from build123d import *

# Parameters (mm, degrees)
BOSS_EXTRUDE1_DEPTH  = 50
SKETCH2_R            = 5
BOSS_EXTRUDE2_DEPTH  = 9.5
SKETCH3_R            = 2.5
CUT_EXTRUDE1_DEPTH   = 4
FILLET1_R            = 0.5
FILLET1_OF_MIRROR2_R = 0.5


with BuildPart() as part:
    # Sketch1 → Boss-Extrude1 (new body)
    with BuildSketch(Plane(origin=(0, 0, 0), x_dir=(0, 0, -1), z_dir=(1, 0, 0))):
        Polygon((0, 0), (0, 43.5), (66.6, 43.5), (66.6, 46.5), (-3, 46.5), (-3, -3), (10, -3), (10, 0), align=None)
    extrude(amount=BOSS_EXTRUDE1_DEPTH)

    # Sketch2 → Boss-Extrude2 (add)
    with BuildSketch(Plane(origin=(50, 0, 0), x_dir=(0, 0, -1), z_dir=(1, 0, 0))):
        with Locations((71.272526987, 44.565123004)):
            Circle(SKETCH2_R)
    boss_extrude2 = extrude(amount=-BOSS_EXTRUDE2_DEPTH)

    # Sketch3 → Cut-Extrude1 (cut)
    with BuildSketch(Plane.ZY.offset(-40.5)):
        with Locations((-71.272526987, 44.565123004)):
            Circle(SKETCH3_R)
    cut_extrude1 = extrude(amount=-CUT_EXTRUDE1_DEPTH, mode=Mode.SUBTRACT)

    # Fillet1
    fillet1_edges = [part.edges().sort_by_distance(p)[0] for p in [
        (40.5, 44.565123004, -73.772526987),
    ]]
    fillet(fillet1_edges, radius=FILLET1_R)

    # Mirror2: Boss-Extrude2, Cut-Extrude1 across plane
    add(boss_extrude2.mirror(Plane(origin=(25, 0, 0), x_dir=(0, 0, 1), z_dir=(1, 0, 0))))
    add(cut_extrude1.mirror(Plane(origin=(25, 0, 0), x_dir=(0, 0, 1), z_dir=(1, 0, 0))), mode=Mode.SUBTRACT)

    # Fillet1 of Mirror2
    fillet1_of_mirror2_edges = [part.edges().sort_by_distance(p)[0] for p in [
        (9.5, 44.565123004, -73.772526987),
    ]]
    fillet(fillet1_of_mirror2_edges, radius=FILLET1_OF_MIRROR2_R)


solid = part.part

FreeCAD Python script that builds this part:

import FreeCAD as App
import Part
import Sketcher
from FreeCAD import Vector


def edges_at(feature, points):
    """Names of the edges that pass closest to the given points."""
    edges = feature.Shape.Edges
    near = lambda p: min(range(len(edges)), key=lambda i: edges[i].distToShape(Part.Vertex(*p))[0])
    return sorted({f"Edge{near(p) + 1}" for p in points})


def add_polygon(sketch, points):
    """Adds a closed chain of lines whose ends are joined by coincident constraints."""
    first, n = sketch.GeometryCount, len(points)
    for a, b in zip(points, points[1:] + points[:1]):
        sketch.addGeometry(Part.LineSegment(App.Vector(*a, 0), App.Vector(*b, 0)), False)
    for i in range(n):
        sketch.addConstraint(Sketcher.Constraint("Coincident", first + i, 2, first + (i + 1) % n, 1))

doc = App.newDocument("Part")
body = doc.addObject("PartDesign::Body", "Body")

# Sketch on YZ plane
sketch1 = doc.addObject("Sketcher::SketchObject", "Sketch")
body.addObject(sketch1)
sketch1.AttachmentSupport = (doc.YZ_Plane, [""])
sketch1.MapMode = "FlatFace"
add_polygon(sketch1, [(0, 0), (43.5, 0), (43.5, -66.6), (46.5, -66.6), (46.5, 3), (-3, 3), (-3, -10), (0, -10)])  # lines 0-7
sketch1.addConstraint(Sketcher.Constraint("Horizontal", 0))
sketch1.addConstraint(Sketcher.Constraint("Vertical", 1))
sketch1.addConstraint(Sketcher.Constraint("Horizontal", 2))
sketch1.addConstraint(Sketcher.Constraint("Vertical", 3))
sketch1.addConstraint(Sketcher.Constraint("Horizontal", 4))
sketch1.addConstraint(Sketcher.Constraint("Vertical", 5))
sketch1.addConstraint(Sketcher.Constraint("Horizontal", 6))
sketch1.addConstraint(Sketcher.Constraint("Vertical", 7))
sketch1.addConstraint(Sketcher.Constraint("Coincident", 7, 2, -1, 1))
sketch1.addConstraint(Sketcher.Constraint("Equal", 2, 6))
sketch1.addConstraint(Sketcher.Constraint("DistanceX", 2, 1, 2, 2, 3.0))
sketch1.addConstraint(Sketcher.Constraint("DistanceY", 5, 2, 5, 1, 13.0))
sketch1.addConstraint(Sketcher.Constraint("DistanceY", 7, 1, 7, 2, 10.0))
sketch1.addConstraint(Sketcher.Constraint("DistanceX", 0, 1, 0, 2, 43.5))
sketch1.addConstraint(Sketcher.Constraint("DistanceY", 1, 2, 1, 1, 66.6))
pad1 = doc.addObject("PartDesign::Pad", "Pad")
body.addObject(pad1)
pad1.Profile = sketch1
pad1.Length = 50

# Sketch on YZ plane
sketch2 = doc.addObject("Sketcher::SketchObject", "Sketch001")
body.addObject(sketch2)
sketch2.AttachmentSupport = (doc.YZ_Plane, [""])
sketch2.MapMode = "FlatFace"
sketch2.AttachmentOffset = App.Placement(Vector(0, 0, 50), App.Rotation())
sketch2.addGeometry(Part.Circle(Vector(45, -71, 0), Vector(0, 0, 1), 5), False)
sketch2.addConstraint(Sketcher.Constraint("Diameter", 0, 10.0))
sketch2.addConstraint(Sketcher.Constraint("DistanceX", -1, 1, 0, 3, 44.565123))
sketch2.addConstraint(Sketcher.Constraint("DistanceY", 0, 3, -1, 1, 71.272527))
pad2 = doc.addObject("PartDesign::Pad", "Pad001")
body.addObject(pad2)
pad2.Profile = sketch2
pad2.Length = 9.5
pad2.Reversed = True

# Sketch on YZ plane
sketch3 = doc.addObject("Sketcher::SketchObject", "Sketch002")
body.addObject(sketch3)
sketch3.AttachmentSupport = (doc.YZ_Plane, [""])
sketch3.MapMode = "FlatFace"
sketch3.AttachmentOffset = App.Placement(Vector(0, 0, 40.5), App.Rotation())
sketch3.addGeometry(Part.Circle(Vector(44.6, -71.3, 0), Vector(0, 0, 1), 2.5), False)
sketch3.addConstraint(Sketcher.Constraint("Diameter", 0, 5.0))
sketch3.addConstraint(Sketcher.Constraint("DistanceX", -1, 1, 0, 3, 44.565123))
sketch3.addConstraint(Sketcher.Constraint("DistanceY", 0, 3, -1, 1, 71.272527))
pocket1 = doc.addObject("PartDesign::Pocket", "Pocket")
body.addObject(pocket1)
pocket1.Profile = sketch3
pocket1.Length = 4
pocket1.Reversed = True
doc.recompute()

fillet = doc.addObject("PartDesign::Fillet", "Fillet")
body.addObject(fillet)
fillet.Base = (pocket1, edges_at(pocket1, [(40.5, 44.565, -73.773)]))
fillet.Radius = 0.5
doc.recompute()

datumplane = doc.addObject("PartDesign::Plane", "DatumPlane")
body.addObject(datumplane)
datumplane.AttachmentSupport = (doc.YZ_Plane, [""])
datumplane.MapMode = "FlatFace"
datumplane.AttachmentOffset = App.Placement(Vector(0, 0, 25), App.Rotation())
mirrored = doc.addObject("PartDesign::Mirrored", "Mirrored")
body.addObject(mirrored)
mirrored.Originals = [pad2, pocket1]
mirrored.MirrorPlane = (datumplane, [""])
body.Tip = mirrored
doc.recompute()

fillet2 = doc.addObject("PartDesign::Fillet", "Fillet001")
body.addObject(fillet2)
fillet2.Base = (mirrored, edges_at(mirrored, [(9.5, 44.565, -73.773)]))
fillet2.Radius = 0.5

doc.recompute()
